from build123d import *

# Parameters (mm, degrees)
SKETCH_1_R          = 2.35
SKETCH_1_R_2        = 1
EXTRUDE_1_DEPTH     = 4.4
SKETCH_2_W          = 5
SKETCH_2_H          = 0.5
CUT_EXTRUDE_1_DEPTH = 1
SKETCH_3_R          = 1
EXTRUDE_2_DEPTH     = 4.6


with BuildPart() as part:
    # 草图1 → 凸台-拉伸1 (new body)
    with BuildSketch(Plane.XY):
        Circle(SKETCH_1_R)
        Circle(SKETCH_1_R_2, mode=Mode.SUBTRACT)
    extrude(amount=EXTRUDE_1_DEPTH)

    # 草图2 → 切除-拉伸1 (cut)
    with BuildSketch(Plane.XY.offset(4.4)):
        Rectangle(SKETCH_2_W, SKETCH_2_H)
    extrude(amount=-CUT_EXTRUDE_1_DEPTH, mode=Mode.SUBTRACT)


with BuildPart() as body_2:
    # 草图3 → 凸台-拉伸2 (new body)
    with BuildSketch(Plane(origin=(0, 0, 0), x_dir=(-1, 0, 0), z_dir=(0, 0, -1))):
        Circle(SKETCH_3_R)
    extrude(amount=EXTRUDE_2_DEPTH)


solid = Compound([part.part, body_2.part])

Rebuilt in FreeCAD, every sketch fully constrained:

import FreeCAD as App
import Part
import Sketcher
Q = App.Units.Quantity

doc = App.newDocument("Part")
body = doc.addObject("PartDesign::Body", "Body")

sketch1 = doc.addObject("Sketcher::SketchObject", "Sketch")
body.addObject(sketch1)
sketch1.AttachmentSupport = (doc.XY_Plane, [""])
sketch1.MapMode = "FlatFace"
sketch1.addGeometry([
    Part.Circle(App.Vector(0, 0, 0), App.Vector(0, 0, 1), 2.4),
    Part.Circle(App.Vector(0, 0, 0), App.Vector(0, 0, 1), 1),
], False)
sketch1.addConstraint([
    Sketcher.Constraint("Coincident", 0, 3, -1, 1),
    Sketcher.Constraint("Coincident", 1, 3, -1, 1),
    Sketcher.Constraint("Diameter", 1, Q("2 mm")),
    Sketcher.Constraint("Diameter", 0, Q("4.7 mm")),
])
pad1 = doc.addObject("PartDesign::Pad", "Pad")
body.addObject(pad1)
pad1.Profile = sketch1
pad1.Length = 4.4

sketch2 = doc.addObject("Sketcher::SketchObject", "Sketch001")
body.addObject(sketch2)
sketch2.AttachmentSupport = (doc.XY_Plane, [""])
sketch2.MapMode = "FlatFace"
sketch2.AttachmentOffset = App.Placement(App.Vector(0, 0, 4.4), App.Rotation())
sketch2.addGeometry([
    Part.LineSegment(App.Vector(-2.5, 0.2, 0), App.Vector(-2.5, -0.2, 0)),
    Part.LineSegment(App.Vector(-2.5, -0.2, 0), App.Vector(2.5, -0.2, 0)),
    Part.LineSegment(App.Vector(2.5, -0.2, 0), App.Vector(2.5, 0.2, 0)),
    Part.LineSegment(App.Vector(2.5, 0.2, 0), App.Vector(-2.5, 0.2, 0)),
], False)
sketch2.addConstraint([
    Sketcher.Constraint("Coincident", 0, 2, 1, 1),
    Sketcher.Constraint("Coincident", 1, 2, 2, 1),
    Sketcher.Constraint("Coincident", 2, 2, 3, 1),
    Sketcher.Constraint("Coincident", 3, 2, 0, 1),
    Sketcher.Constraint("Vertical", 0),
    Sketcher.Constraint("Horizontal", 1),
    Sketcher.Constraint("Vertical", 2),
    Sketcher.Constraint("Horizontal", 3),
    Sketcher.Constraint("Symmetric", 0, 2, 2, 2, -1, 1),
    Sketcher.Constraint("DistanceX", 1, 1, 1, 2, Q("5 mm")),
    Sketcher.Constraint("DistanceY", 0, 2, 0, 1, Q("0.5 mm")),
])
pocket1 = doc.addObject("PartDesign::Pocket", "Pocket")
body.addObject(pocket1)
pocket1.Profile = sketch2
pocket1.Length = 1
body2 = doc.addObject("PartDesign::Body", "Body001")

sketch3 = doc.addObject("Sketcher::SketchObject", "Sketch002")
body2.addObject(sketch3)
sketch3.AttachmentSupport = (doc.getObject("XY_Plane001"), [""])
sketch3.MapMode = "FlatFace"
sketch3.addGeometry(Part.Circle(App.Vector(0, 0, 0), App.Vector(0, 0, 1), 1), False)
sketch3.addConstraint([
    Sketcher.Constraint("Coincident", 0, 3, -1, 1),
    Sketcher.Constraint("Diameter", 0, Q("2 mm")),
])
pad2 = doc.addObject("PartDesign::Pad", "Pad001")
body2.addObject(pad2)
pad2.Profile = sketch3
pad2.Length = 4.6
pad2.Reversed = True

doc.recompute()
